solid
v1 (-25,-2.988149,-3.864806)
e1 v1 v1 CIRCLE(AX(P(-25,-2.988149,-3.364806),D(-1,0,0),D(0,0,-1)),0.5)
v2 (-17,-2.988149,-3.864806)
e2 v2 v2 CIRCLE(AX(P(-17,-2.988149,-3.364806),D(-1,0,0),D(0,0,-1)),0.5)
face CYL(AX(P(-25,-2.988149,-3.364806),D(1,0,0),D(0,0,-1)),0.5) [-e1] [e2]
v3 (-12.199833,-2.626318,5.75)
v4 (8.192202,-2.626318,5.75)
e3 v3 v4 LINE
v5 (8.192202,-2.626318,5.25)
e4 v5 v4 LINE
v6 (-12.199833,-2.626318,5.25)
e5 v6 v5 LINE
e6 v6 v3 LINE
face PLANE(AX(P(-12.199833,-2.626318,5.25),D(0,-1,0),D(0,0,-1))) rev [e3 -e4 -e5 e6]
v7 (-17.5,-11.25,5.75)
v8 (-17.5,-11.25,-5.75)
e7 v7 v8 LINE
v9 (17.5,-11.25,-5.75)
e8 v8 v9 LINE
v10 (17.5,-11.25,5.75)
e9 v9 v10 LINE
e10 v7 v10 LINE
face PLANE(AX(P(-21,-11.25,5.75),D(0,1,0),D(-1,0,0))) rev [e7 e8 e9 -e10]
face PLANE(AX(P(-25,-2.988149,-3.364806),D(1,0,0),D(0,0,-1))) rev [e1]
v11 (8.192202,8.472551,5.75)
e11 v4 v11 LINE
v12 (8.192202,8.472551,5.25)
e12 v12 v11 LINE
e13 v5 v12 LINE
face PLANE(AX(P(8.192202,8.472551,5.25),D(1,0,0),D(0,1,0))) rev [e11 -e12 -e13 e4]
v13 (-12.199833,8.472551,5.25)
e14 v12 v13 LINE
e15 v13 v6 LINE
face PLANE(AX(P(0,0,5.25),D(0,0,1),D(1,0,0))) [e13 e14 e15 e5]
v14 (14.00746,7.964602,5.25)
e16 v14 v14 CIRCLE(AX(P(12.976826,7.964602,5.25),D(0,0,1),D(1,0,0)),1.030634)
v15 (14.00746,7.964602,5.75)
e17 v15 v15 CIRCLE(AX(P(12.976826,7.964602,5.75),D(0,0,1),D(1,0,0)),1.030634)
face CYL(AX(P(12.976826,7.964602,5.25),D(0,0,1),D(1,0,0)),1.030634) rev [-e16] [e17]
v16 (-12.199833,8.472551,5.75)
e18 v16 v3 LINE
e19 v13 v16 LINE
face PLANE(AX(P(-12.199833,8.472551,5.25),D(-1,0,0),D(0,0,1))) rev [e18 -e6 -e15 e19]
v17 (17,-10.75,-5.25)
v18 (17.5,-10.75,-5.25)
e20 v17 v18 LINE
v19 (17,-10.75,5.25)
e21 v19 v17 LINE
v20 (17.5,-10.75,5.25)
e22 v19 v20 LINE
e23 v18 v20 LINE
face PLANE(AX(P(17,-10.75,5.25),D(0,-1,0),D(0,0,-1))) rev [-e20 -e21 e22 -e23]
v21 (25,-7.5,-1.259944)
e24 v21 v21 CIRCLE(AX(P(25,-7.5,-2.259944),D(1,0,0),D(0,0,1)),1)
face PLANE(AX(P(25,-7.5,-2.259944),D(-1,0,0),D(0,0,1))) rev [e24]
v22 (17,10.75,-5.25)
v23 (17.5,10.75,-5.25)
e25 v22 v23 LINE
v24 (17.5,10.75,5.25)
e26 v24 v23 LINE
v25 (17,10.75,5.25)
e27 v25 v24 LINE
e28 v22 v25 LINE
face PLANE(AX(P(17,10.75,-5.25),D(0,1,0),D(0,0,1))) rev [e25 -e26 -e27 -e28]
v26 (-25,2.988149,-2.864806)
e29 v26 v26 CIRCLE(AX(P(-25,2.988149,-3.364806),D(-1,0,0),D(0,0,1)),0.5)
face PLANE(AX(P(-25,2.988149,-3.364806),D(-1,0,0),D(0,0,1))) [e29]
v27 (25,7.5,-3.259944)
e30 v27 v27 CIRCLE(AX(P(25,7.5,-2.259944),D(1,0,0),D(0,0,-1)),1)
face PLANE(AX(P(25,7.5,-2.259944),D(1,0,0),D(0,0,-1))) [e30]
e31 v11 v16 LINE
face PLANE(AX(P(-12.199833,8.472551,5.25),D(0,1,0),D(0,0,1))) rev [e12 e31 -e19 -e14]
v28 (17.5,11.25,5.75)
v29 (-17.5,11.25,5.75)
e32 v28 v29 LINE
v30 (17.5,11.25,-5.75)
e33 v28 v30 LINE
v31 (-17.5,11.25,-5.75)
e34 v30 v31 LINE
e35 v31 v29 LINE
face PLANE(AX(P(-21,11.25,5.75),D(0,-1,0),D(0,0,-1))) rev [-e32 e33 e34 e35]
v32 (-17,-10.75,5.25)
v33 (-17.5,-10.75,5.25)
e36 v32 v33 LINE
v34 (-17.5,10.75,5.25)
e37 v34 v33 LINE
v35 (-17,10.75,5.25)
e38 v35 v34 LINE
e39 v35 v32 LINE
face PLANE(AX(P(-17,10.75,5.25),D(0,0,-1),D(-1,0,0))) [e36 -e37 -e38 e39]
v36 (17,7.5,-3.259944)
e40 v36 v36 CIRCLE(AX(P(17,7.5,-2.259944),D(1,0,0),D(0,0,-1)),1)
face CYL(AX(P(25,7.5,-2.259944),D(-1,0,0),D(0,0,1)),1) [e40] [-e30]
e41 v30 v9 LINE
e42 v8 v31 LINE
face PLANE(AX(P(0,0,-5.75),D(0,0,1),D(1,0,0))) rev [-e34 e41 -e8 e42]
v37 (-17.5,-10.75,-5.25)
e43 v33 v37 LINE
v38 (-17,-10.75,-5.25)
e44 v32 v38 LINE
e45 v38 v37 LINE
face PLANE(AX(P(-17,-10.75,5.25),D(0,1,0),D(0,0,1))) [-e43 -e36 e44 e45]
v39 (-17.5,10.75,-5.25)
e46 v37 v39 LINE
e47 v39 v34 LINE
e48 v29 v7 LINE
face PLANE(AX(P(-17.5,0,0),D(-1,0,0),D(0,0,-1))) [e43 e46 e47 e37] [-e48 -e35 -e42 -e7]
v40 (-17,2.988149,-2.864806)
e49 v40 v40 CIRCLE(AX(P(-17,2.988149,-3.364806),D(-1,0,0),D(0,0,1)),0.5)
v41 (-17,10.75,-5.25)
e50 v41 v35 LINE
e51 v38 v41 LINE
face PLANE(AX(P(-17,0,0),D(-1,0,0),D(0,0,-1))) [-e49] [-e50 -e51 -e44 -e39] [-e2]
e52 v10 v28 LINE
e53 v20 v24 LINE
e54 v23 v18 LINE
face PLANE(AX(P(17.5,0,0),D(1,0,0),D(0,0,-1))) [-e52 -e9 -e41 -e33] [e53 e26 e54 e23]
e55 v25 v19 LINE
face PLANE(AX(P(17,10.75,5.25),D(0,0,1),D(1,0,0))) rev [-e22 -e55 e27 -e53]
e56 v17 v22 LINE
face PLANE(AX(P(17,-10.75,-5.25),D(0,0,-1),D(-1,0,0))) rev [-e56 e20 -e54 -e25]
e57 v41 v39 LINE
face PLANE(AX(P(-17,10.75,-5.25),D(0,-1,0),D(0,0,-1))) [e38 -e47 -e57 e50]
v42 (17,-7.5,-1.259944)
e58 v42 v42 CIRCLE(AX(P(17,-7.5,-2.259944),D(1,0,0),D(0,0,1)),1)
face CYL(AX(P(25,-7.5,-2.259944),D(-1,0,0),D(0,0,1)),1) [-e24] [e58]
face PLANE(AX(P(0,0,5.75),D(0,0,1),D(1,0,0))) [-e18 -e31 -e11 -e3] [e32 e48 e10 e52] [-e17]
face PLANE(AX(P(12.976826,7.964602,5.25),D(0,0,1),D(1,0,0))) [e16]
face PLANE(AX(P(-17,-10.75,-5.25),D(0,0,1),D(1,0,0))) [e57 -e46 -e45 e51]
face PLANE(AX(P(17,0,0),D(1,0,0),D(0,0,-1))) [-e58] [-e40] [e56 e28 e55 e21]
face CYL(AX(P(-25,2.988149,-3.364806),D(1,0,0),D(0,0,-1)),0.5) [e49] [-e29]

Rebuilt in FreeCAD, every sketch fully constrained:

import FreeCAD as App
import Part
import Sketcher
from FreeCAD import Vector
Q = App.Units.Quantity

doc = App.newDocument("Part")
body = doc.addObject("PartDesign::Body", "Body")

# Sketch on XY plane
sketch1 = doc.addObject("Sketcher::SketchObject", "Sketch")
body.addObject(sketch1)
sketch1.AttachmentSupport = (doc.XY_Plane, [""])
sketch1.MapMode = "FlatFace"
sketch1.addGeometry([
    Part.LineSegment(Vector(-21, 11, 0), Vector(-21, -11, 0)),
    Part.LineSegment(Vector(-21, -11, 0), Vector(21, -11, 0)),
    Part.LineSegment(Vector(21, -11, 0), Vector(21, 11, 0)),
    Part.LineSegment(Vector(21, 11, 0), Vector(-21, 11, 0)),
], False)
sketch1.addConstraint([
    Sketcher.Constraint("Coincident", 0, 2, 1, 1),
    Sketcher.Constraint("Coincident", 1, 2, 2, 1),
    Sketcher.Constraint("Coincident", 2, 2, 3, 1),
    Sketcher.Constraint("Coincident", 3, 2, 0, 1),
    Sketcher.Constraint("Vertical", 0),
    Sketcher.Constraint("Horizontal", 1),
    Sketcher.Constraint("Vertical", 2),
    Sketcher.Constraint("Horizontal", 3),
    Sketcher.Constraint("Symmetric", 0, 2, 2, 2, -1, 1),
    Sketcher.Constraint("DistanceX", 1, 1, 1, 2, Q("42 mm")),
    Sketcher.Constraint("DistanceY", 0, 2, 0, 1, Q("22.5 mm")),
])
pad1 = doc.addObject("PartDesign::Pad", "Pad")
body.addObject(pad1)
pad1.Profile = sketch1
pad1.Length = 11.5
pad1.Midplane = True

# Sketch on YZ plane
sketch2 = doc.addObject("Sketcher::SketchObject", "Sketch001")
body.addObject(sketch2)
sketch2.AttachmentSupport = (doc.YZ_Plane, [""])
sketch2.MapMode = "FlatFace"
sketch2.AttachmentOffset = App.Placement(Vector(0, 0, 21), App.Rotation())
sketch2.addGeometry([
    Part.LineSegment(Vector(11, 5, 0), Vector(-11, 5, 0)),
    Part.LineSegment(Vector(-11, 5, 0), Vector(-11, -5, 0)),
    Part.LineSegment(Vector(-11, -5, 0), Vector(11, -5, 0)),
    Part.LineSegment(Vector(11, -5, 0), Vector(11, 5, 0)),
], False)
sketch2.addConstraint([
    Sketcher.Constraint("Coincident", 0, 2, 1, 1),
    Sketcher.Constraint("Coincident", 1, 2, 2, 1),
    Sketcher.Constraint("Coincident", 2, 2, 3, 1),
    Sketcher.Constraint("Coincident", 3, 2, 0, 1),
    Sketcher.Constraint("Horizontal", 0),
    Sketcher.Constraint("Vertical", 1),
    Sketcher.Constraint("Horizontal", 2),
    Sketcher.Constraint("Vertical", 3),
    Sketcher.Constraint("Symmetric", 0, 2, 2, 2, -1, 1),
    Sketcher.Constraint("DistanceX", 0, 2, 0, 1, Q("21.5 mm")),
    Sketcher.Constraint("DistanceY", 1, 2, 1, 1, Q("10.5 mm")),
])
pocket1 = doc.addObject("PartDesign::Pocket", "Pocket")
body.addObject(pocket1)
pocket1.Profile = sketch2
pocket1.Length = 4
doc.recompute()

mirrored = doc.addObject("PartDesign::Mirrored", "Mirrored")
body.addObject(mirrored)
mirrored.Originals = [pocket1]
mirrored.MirrorPlane = (doc.YZ_Plane, [""])
body.Tip = mirrored

# Sketch on YZ plane
sketch3 = doc.addObject("Sketcher::SketchObject", "Sketch002")
body.addObject(sketch3)
sketch3.AttachmentSupport = (doc.YZ_Plane, [""])
sketch3.MapMode = "FlatFace"
sketch3.AttachmentOffset = App.Placement(Vector(0, 0, 17), App.Rotation())
sketch3.addGeometry([
    Part.Circle(Vector(7.5, -2.3, 0), Vector(0, 0, 1), 1),
    Part.Circle(Vector(-7.5, -2.3, 0), Vector(0, 0, 1), 1),
], False)
sketch3.addConstraint([
    Sketcher.Constraint("Equal", 0, 1),
    Sketcher.Constraint("Symmetric", 0, 3, 1, 3, -2),
    Sketcher.Constraint("Diameter", 0, Q("2 mm")),
    Sketcher.Constraint("DistanceX", 1, 3, 0, 3, Q("15 mm")),
    Sketcher.Constraint("DistanceY", 0, 3, -1, 1, Q("2.259944 mm")),
])
pad2 = doc.addObject("PartDesign::Pad", "Pad001")
body.addObject(pad2)
pad2.Profile = sketch3
pad2.Length = 8

# Sketch on YZ plane
sketch4 = doc.addObject("Sketcher::SketchObject", "Sketch003")
body.addObject(sketch4)
sketch4.AttachmentSupport = (doc.YZ_Plane, [""])
sketch4.MapMode = "FlatFace"
sketch4.AttachmentOffset = App.Placement(Vector(0, 0, -17), App.Rotation())
sketch4.addGeometry([
    Part.Circle(Vector(3, -3.4, 0), Vector(0, 0, 1), 0.5),
    Part.Circle(Vector(-3, -3.4, 0), Vector(0, 0, 1), 0.5),
], False)
sketch4.addConstraint([
    Sketcher.Constraint("Equal", 0, 1),
    Sketcher.Constraint("Symmetric", 0, 3, 1, 3, -2),
    Sketcher.Constraint("Diameter", 0, Q("1 mm")),
    Sketcher.Constraint("DistanceX", -1, 1, 0, 3, Q("2.988149 mm")),
    Sketcher.Constraint("DistanceY", 0, 3, -1, 1, Q("3.364806 mm")),
])
pad3 = doc.addObject("PartDesign::Pad", "Pad002")
body.addObject(pad3)
pad3.Profile = sketch4
pad3.Length = 8
pad3.Reversed = True

# Sketch on XY plane
sketch5 = doc.addObject("Sketcher::SketchObject", "Sketch004")
body.addObject(sketch5)
sketch5.AttachmentSupport = (doc.XY_Plane, [""])
sketch5.MapMode = "FlatFace"
sketch5.AttachmentOffset = App.Placement(Vector(0, 0, 5.75), App.Rotation())
sketch5.addGeometry([
    Part.Circle(Vector(13, 8, 0), Vector(0, 0, 1), 1),  # 0
    Part.LineSegment(Vector(-12.2, 8.5, 0), Vector(-12.2, -2.6, 0)),  # 1
    Part.LineSegment(Vector(-12.2, -2.6, 0), Vector(8.2, -2.6, 0)),  # 2
    Part.LineSegment(Vector(8.2, -2.6, 0), Vector(8.2, 8.5, 0)),  # 3
    Part.LineSegment(Vector(8.2, 8.5, 0), Vector(-12.2, 8.5, 0)),  # 4
], False)
sketch5.addConstraint([
    Sketcher.Constraint("Coincident", 1, 2, 2, 1),
    Sketcher.Constraint("Coincident", 2, 2, 3, 1),
    Sketcher.Constraint("Coincident", 3, 2, 4, 1),
    Sketcher.Constraint("Coincident", 4, 2, 1, 1),
    Sketcher.Constraint("Vertical", 1),
    Sketcher.Constraint("Horizontal", 2),
    Sketcher.Constraint("Vertical", 3),
    Sketcher.Constraint("Horizontal", 4),
    Sketcher.Constraint("Diameter", 0, Q("2.061267 mm")),
    Sketcher.Constraint("DistanceY", 1, 2, 1, 1, Q("11.098868 mm")),
    Sketcher.Constraint("DistanceY", -1, 1, 0, 3, Q("7.964602 mm")),
    Sketcher.Constraint("DistanceX", -1, 1, 2, 2, Q("8.192202 mm")),
    Sketcher.Constraint("DistanceX", 2, 1, 2, 2, Q("20.392035 mm")),
    Sketcher.Constraint("DistanceY", -1, 1, 3, 2, Q("8.472551 mm")),
    Sketcher.Constraint("DistanceX", 1, 2, 0, 3, Q("25.176659 mm")),
])
pocket2 = doc.addObject("PartDesign::Pocket", "Pocket001")
body.addObject(pocket2)
pocket2.Profile = sketch5
pocket2.Length = 0.5

# Sketch on YZ plane
sketch6 = doc.addObject("Sketcher::SketchObject", "Sketch005")
body.addObject(sketch6)
sketch6.AttachmentSupport = (doc.YZ_Plane, [""])
sketch6.MapMode = "FlatFace"
sketch6.AttachmentOffset = App.Placement(Vector(0, 0, 21), App.Rotation())
sketch6.addGeometry([
    Part.LineSegment(Vector(11, 6, 0), Vector(-11, 6, 0)),  # 0
    Part.LineSegment(Vector(-11, 6, 0), Vector(-11, -6, 0)),  # 1
    Part.LineSegment(Vector(-11, -6, 0), Vector(11, -6, 0)),  # 2
    Part.LineSegment(Vector(11, -6, 0), Vector(11, 6, 0)),  # 3
    Part.LineSegment(Vector(-11, -5, 0), Vector(-11, 5, 0)),  # 4
    Part.LineSegment(Vector(-11, 5, 0), Vector(11, 5, 0)),  # 5
    Part.LineSegment(Vector(11, 5, 0), Vector(11, -5, 0)),  # 6
    Part.LineSegment(Vector(11, -5, 0), Vector(-11, -5, 0)),  # 7
], False)
sketch6.addConstraint([
    Sketcher.Constraint("Coincident", 0, 2, 1, 1),
    Sketcher.Constraint("Coincident", 1, 2, 2, 1),
    Sketcher.Constraint("Coincident", 2, 2, 3, 1),
    Sketcher.Constraint("Coincident", 3, 2, 0, 1),
    Sketcher.Constraint("Coincident", 4, 2, 5, 1),
    Sketcher.Constraint("Coincident", 5, 2, 6, 1),
    Sketcher.Constraint("Coincident", 6, 2, 7, 1),
    Sketcher.Constraint("Coincident", 7, 2, 4, 1),
    Sketcher.Constraint("Horizontal", 0),
    Sketcher.Constraint("Vertical", 1),
    Sketcher.Constraint("Horizontal", 2),
    Sketcher.Constraint("Vertical", 3),
    Sketcher.Constraint("Vertical", 4),
    Sketcher.Constraint("Horizontal", 5),
    Sketcher.Constraint("Vertical", 6),
    Sketcher.Constraint("Horizontal", 7),
    Sketcher.Constraint("Symmetric", 0, 2, 2, 2, -1, 1),
    Sketcher.Constraint("Symmetric", 4, 2, 6, 2, -1, 1),
    Sketcher.Constraint("DistanceX", 0, 2, 0, 1, Q("22.5 mm")),
    Sketcher.Constraint("DistanceX", 5, 1, 5, 2, Q("21.5 mm")),
    Sketcher.Constraint("DistanceY", 1, 2, 1, 1, Q("11.5 mm")),
    Sketcher.Constraint("DistanceY", 4, 1, 4, 2, Q("10.5 mm")),
])
pocket3 = doc.addObject("PartDesign::Pocket", "Pocket002")
body.addObject(pocket3)
pocket3.Profile = sketch6
pocket3.Length = 3.5

# Sketch on YZ plane
sketch7 = doc.addObject("Sketcher::SketchObject", "Sketch006")
body.addObject(sketch7)
sketch7.AttachmentSupport = (doc.YZ_Plane, [""])
sketch7.MapMode = "FlatFace"
sketch7.AttachmentOffset = App.Placement(Vector(0, 0, -21), App.Rotation())
sketch7.addGeometry([
    Part.LineSegment(Vector(11, -6, 0), Vector(-11, -6, 0)),  # 0
    Part.LineSegment(Vector(-11, -6, 0), Vector(-11, 6, 0)),  # 1
    Part.LineSegment(Vector(-11, 6, 0), Vector(11, 6, 0)),  # 2
    Part.LineSegment(Vector(11, 6, 0), Vector(11, -6, 0)),  # 3
    Part.LineSegment(Vector(-11, 5, 0), Vector(-11, -5, 0)),  # 4
    Part.LineSegment(Vector(-11, -5, 0), Vector(11, -5, 0)),  # 5
    Part.LineSegment(Vector(11, -5, 0), Vector(11, 5, 0)),  # 6
    Part.LineSegment(Vector(11, 5, 0), Vector(-11, 5, 0)),  # 7
], False)
sketch7.addConstraint([
    Sketcher.Constraint("Coincident", 0, 2, 1, 1),
    Sketcher.Constraint("Coincident", 1, 2, 2, 1),
    Sketcher.Constraint("Coincident", 2, 2, 3, 1),
    Sketcher.Constraint("Coincident", 3, 2, 0, 1),
    Sketcher.Constraint("Coincident", 4, 2, 5, 1),
    Sketcher.Constraint("Coincident", 5, 2, 6, 1),
    Sketcher.Constraint("Coincident", 6, 2, 7, 1),
    Sketcher.Constraint("Coincident", 7, 2, 4, 1),
    Sketcher.Constraint("Horizontal", 0),
    Sketcher.Constraint("Vertical", 1),
    Sketcher.Constraint("Horizontal", 2),
    Sketcher.Constraint("Vertical", 3),
    Sketcher.Constraint("Vertical", 4),
    Sketcher.Constraint("Horizontal", 5),
    Sketcher.Constraint("Vertical", 6),
    Sketcher.Constraint("Horizontal", 7),
    Sketcher.Constraint("Symmetric", 0, 2, 2, 2, -1, 1),
    Sketcher.Constraint("Symmetric", 4, 2, 6, 2, -1, 1),
    Sketcher.Constraint("DistanceX", 0, 2, 0, 1, Q("22.5 mm")),
    Sketcher.Constraint("DistanceX", 5, 1, 5, 2, Q("21.5 mm")),
    Sketcher.Constraint("DistanceY", 1, 1, 1, 2, Q("11.5 mm")),
    Sketcher.Constraint("DistanceY", 4, 2, 4, 1, Q("10.5 mm")),
])
pocket4 = doc.addObject("PartDesign::Pocket", "Pocket003")
body.addObject(pocket4)
pocket4.Profile = sketch7
pocket4.Length = 3.5
pocket4.Reversed = True

doc.recompute()
